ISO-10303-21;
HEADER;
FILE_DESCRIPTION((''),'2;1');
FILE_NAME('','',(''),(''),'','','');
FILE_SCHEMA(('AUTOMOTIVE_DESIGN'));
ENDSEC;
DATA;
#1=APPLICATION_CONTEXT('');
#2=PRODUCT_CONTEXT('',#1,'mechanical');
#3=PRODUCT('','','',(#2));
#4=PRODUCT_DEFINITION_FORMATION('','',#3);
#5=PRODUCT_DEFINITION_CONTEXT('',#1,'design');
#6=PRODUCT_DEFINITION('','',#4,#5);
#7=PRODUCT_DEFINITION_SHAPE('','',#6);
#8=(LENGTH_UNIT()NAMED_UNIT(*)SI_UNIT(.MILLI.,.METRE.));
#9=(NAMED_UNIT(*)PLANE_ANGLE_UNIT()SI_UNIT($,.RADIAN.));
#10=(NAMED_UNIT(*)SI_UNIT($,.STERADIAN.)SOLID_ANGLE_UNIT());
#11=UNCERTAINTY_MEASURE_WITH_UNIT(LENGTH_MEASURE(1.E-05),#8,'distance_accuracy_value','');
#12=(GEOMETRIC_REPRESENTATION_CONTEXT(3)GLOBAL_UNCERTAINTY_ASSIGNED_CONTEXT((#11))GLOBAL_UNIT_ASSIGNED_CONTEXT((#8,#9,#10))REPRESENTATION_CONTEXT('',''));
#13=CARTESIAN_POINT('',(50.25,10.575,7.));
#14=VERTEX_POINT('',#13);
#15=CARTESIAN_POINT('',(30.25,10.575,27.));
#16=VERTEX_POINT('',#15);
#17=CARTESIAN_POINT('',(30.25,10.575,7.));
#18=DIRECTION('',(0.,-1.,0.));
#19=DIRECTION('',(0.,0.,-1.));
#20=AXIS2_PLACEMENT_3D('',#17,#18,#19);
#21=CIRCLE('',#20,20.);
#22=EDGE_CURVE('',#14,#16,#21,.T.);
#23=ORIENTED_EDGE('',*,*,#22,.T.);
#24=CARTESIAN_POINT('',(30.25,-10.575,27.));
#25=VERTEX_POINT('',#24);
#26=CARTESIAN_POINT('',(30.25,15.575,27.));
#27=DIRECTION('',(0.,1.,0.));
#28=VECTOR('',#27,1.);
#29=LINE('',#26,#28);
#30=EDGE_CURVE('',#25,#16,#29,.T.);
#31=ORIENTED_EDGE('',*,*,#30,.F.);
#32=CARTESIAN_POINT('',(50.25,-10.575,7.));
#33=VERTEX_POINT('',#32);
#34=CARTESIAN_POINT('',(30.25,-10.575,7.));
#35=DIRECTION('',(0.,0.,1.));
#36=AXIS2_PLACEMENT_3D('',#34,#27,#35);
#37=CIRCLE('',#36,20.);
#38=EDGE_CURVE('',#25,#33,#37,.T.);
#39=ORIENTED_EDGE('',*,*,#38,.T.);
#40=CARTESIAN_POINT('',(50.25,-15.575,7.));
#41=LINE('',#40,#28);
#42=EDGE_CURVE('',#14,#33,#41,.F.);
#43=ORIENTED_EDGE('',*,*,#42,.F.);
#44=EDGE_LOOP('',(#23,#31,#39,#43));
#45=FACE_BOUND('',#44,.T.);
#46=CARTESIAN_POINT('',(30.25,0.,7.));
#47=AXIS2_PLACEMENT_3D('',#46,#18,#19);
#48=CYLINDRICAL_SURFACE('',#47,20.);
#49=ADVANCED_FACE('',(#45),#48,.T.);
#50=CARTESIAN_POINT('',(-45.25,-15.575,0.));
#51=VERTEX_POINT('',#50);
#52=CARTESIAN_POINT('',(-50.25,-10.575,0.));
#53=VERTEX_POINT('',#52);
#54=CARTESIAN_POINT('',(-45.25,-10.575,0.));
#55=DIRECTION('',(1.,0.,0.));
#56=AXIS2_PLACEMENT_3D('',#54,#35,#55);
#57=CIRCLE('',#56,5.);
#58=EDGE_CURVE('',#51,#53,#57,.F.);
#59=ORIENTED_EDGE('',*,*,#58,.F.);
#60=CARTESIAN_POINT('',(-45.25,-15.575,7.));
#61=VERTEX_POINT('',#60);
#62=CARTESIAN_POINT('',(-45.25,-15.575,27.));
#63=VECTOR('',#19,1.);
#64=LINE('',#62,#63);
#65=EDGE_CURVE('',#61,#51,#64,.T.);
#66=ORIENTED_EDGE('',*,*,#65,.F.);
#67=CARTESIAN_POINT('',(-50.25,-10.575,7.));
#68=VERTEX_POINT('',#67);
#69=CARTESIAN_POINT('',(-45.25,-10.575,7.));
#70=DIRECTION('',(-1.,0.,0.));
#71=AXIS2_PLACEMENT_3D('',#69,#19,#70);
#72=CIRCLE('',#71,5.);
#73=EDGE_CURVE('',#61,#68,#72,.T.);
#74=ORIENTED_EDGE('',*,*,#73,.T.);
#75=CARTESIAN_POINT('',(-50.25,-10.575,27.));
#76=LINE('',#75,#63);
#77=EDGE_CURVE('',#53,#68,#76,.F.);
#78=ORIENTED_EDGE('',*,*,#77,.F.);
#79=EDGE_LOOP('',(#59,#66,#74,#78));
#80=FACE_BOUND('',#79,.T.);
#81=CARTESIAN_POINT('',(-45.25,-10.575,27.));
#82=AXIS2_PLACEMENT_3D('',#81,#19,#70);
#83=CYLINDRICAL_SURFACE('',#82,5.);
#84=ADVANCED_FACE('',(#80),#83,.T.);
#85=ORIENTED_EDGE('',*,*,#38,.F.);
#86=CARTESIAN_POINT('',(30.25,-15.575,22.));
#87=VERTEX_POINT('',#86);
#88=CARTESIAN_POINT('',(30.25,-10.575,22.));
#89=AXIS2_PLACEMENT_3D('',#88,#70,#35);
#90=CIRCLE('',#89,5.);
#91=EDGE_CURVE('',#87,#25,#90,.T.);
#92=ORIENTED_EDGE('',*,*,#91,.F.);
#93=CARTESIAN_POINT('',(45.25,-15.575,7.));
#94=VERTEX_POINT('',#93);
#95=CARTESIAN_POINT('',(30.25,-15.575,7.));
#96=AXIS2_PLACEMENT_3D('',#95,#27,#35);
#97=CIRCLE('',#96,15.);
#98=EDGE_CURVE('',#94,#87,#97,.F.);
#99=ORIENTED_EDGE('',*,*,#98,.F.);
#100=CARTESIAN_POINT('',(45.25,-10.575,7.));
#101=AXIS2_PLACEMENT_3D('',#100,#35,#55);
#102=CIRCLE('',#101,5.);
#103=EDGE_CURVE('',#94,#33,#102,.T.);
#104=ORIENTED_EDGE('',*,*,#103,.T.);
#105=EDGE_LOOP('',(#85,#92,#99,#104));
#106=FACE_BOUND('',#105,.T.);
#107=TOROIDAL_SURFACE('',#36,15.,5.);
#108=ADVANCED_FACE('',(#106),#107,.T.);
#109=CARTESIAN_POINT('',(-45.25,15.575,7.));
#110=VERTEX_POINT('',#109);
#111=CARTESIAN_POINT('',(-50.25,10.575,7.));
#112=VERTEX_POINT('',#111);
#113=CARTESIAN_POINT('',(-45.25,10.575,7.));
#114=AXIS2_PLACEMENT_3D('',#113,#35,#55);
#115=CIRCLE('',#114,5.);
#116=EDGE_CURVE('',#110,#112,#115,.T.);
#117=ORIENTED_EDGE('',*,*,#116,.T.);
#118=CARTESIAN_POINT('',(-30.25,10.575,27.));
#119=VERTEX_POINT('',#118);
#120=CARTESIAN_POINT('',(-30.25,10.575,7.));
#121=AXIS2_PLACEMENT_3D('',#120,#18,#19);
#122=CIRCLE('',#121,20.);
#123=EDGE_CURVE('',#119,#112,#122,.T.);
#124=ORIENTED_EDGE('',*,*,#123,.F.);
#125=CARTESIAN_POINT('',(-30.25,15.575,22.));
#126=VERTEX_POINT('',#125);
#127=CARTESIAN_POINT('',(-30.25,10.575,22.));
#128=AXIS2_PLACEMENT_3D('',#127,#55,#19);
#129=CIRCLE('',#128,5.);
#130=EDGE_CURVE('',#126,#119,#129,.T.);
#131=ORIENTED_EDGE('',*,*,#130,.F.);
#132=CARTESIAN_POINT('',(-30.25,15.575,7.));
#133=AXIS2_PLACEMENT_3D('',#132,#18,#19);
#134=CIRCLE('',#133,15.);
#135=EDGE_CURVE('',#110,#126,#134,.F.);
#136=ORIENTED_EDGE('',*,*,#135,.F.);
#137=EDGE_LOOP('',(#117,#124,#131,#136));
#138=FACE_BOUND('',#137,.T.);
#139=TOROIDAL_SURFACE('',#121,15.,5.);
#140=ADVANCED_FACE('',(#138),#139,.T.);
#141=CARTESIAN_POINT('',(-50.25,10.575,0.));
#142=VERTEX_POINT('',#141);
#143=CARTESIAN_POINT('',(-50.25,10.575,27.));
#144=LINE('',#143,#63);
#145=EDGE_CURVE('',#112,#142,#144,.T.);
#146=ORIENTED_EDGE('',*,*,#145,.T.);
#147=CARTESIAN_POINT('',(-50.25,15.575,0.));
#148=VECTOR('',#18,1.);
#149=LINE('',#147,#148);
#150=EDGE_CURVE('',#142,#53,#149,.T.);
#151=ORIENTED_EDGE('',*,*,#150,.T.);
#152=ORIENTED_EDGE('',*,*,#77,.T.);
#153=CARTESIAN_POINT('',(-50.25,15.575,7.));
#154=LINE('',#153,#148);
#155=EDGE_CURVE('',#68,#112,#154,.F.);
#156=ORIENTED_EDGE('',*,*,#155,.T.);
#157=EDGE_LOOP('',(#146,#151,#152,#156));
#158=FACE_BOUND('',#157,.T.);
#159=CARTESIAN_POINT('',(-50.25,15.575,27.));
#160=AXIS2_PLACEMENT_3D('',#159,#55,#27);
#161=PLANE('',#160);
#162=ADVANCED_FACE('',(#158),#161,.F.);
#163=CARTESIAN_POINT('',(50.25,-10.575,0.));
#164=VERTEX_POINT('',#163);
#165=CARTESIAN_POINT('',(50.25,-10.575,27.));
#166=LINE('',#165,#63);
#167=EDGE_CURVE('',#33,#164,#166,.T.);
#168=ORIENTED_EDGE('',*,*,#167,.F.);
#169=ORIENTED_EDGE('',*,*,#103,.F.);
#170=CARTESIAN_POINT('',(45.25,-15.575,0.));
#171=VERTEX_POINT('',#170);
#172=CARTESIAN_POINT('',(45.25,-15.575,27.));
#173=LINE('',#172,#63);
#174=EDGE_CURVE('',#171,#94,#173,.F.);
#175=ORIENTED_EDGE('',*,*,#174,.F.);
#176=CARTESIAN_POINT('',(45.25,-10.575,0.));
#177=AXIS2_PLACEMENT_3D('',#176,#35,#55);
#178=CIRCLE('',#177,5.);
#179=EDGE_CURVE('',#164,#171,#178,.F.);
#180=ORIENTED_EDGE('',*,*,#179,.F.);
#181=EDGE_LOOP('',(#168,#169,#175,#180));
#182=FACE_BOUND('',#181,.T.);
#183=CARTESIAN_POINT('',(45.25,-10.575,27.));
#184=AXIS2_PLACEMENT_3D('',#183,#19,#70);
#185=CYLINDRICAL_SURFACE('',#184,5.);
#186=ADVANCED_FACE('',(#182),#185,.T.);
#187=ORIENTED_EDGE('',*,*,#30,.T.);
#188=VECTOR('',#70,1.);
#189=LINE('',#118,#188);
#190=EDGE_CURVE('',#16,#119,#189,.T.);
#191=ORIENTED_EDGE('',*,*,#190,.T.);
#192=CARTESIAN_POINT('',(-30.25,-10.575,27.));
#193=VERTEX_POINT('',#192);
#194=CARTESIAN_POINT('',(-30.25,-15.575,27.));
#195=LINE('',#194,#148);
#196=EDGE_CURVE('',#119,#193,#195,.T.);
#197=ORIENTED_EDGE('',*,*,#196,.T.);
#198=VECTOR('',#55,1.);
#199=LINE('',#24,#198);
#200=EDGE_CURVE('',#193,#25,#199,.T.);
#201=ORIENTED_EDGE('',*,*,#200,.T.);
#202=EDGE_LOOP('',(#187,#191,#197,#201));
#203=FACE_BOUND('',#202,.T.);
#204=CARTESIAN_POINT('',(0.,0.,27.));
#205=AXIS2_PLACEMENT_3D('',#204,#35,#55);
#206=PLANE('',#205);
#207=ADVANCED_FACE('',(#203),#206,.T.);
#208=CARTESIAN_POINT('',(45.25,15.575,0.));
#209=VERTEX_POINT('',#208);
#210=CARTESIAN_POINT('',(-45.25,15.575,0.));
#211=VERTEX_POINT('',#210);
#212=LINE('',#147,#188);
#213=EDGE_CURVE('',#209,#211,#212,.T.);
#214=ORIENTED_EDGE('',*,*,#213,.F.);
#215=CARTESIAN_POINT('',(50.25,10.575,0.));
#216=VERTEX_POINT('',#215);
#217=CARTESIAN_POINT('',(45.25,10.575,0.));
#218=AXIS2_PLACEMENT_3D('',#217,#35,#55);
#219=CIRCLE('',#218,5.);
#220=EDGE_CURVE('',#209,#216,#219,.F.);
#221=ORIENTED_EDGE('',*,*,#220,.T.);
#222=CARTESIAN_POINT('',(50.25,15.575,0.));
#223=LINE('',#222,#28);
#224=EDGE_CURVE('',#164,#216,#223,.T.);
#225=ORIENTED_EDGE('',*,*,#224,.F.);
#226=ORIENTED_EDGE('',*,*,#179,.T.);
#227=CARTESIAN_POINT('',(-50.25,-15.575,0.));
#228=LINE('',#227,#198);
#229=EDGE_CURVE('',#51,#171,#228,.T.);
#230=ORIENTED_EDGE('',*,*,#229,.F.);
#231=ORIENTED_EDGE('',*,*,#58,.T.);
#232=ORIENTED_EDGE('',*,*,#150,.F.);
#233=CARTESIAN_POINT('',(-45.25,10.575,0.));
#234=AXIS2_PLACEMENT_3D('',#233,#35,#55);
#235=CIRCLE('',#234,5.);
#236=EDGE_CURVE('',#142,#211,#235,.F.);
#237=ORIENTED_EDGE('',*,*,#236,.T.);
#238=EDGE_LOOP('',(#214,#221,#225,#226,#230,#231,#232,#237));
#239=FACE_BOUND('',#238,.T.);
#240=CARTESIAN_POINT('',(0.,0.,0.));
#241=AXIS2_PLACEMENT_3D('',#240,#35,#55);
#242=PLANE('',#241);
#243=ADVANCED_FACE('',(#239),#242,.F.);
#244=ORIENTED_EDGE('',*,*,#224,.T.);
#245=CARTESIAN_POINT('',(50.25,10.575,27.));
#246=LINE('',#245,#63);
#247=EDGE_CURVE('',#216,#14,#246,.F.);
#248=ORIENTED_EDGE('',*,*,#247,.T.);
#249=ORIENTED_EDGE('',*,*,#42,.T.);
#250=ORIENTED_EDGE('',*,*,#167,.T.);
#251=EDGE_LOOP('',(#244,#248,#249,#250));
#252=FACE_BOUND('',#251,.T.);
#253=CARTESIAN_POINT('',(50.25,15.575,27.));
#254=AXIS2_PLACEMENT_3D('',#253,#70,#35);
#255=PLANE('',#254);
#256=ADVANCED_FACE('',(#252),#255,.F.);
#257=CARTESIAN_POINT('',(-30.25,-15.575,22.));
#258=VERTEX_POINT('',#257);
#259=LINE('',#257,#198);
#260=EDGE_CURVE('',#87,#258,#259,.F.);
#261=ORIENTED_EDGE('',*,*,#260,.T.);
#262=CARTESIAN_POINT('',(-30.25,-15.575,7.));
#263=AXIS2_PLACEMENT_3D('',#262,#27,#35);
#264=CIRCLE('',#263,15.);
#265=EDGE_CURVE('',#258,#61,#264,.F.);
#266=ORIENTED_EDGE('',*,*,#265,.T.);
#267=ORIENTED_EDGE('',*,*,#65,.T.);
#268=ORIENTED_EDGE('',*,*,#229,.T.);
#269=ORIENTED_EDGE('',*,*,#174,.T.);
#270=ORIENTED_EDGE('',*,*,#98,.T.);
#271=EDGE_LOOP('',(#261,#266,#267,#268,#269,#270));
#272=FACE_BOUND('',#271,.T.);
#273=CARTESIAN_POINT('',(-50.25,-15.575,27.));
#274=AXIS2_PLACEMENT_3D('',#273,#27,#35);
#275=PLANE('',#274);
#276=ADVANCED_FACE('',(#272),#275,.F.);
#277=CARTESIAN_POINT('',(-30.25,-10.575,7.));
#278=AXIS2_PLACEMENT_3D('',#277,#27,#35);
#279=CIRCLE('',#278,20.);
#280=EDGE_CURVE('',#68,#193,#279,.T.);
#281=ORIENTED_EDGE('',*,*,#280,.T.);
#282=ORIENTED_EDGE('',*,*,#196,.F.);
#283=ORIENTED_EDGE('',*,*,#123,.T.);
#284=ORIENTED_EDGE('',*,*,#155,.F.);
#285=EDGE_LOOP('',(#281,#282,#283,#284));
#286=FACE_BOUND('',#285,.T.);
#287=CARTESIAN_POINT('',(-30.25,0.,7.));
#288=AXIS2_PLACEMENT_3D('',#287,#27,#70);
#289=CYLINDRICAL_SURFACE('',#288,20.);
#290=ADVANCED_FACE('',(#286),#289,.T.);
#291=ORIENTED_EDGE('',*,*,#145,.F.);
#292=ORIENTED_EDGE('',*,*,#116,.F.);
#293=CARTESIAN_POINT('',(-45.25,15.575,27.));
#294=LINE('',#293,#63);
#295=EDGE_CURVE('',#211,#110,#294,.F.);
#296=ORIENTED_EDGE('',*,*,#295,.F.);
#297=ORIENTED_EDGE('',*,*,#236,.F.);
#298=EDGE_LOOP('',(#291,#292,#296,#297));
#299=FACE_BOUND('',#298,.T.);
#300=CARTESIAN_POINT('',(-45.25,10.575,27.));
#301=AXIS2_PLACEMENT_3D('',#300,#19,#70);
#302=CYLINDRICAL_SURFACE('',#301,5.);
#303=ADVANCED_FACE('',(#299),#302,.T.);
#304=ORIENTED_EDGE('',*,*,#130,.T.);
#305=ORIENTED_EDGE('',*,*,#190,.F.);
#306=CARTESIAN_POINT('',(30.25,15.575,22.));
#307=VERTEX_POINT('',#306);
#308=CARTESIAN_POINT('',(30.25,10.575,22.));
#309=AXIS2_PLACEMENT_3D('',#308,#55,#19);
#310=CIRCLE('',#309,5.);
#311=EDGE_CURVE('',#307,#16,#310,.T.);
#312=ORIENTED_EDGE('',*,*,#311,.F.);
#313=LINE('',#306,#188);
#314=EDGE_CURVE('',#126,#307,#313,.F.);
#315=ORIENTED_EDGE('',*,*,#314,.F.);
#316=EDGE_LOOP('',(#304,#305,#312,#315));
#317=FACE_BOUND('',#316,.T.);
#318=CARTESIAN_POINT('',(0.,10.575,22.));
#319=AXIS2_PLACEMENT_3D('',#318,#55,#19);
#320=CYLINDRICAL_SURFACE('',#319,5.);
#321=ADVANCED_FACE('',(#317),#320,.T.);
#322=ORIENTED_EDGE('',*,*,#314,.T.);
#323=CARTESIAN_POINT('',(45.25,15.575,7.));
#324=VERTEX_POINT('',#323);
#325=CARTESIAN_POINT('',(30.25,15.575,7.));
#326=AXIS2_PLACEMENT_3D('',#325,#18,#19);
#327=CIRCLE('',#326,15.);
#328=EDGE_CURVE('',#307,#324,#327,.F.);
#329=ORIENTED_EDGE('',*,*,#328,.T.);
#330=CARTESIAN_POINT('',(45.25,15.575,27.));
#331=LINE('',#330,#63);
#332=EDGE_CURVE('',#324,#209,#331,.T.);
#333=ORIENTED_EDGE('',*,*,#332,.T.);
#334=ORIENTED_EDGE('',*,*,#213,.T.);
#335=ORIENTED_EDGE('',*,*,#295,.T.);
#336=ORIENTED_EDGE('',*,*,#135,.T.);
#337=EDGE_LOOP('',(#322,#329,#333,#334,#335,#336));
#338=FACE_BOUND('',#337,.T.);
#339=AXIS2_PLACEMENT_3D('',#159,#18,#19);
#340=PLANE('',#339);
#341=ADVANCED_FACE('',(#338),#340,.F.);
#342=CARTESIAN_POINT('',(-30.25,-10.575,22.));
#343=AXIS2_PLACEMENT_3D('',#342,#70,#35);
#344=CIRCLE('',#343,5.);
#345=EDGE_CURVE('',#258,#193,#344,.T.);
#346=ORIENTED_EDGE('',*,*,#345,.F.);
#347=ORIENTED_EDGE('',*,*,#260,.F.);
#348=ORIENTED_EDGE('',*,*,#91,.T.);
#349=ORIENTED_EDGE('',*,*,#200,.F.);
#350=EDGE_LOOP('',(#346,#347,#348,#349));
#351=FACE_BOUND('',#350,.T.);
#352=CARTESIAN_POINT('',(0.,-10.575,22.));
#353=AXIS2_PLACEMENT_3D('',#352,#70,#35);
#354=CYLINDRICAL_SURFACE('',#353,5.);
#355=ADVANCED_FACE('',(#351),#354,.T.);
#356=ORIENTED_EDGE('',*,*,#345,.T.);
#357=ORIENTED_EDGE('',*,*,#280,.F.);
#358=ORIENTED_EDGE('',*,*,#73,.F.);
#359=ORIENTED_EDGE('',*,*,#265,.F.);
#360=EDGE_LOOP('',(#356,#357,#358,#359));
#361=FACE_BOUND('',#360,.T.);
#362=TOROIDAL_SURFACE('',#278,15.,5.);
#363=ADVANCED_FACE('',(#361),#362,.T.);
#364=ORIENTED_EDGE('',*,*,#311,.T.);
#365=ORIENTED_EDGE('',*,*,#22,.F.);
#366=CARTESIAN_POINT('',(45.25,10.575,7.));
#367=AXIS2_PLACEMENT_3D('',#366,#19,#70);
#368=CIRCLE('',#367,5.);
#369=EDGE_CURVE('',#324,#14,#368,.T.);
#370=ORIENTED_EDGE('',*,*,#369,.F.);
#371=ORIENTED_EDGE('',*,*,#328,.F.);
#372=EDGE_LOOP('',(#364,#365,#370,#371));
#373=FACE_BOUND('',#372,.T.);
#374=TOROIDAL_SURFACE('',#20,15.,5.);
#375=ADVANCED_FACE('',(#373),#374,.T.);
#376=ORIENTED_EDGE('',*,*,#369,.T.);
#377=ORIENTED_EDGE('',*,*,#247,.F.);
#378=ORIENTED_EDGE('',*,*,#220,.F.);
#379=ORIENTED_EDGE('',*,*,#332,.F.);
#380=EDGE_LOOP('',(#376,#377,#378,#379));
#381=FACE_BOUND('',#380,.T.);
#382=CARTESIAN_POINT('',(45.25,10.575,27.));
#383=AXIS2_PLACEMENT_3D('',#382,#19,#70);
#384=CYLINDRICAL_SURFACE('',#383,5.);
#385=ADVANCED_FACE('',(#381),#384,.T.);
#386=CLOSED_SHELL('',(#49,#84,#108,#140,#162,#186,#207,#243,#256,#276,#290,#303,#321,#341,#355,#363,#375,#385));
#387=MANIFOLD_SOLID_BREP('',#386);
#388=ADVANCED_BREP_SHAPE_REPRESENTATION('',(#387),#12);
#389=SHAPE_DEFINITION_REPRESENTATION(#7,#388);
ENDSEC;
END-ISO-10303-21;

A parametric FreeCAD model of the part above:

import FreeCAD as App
import Part
import Sketcher
from FreeCAD import Vector


def edges_at(feature, points):
    """Names of the edges that pass closest to the given points."""
    edges = feature.Shape.Edges
    near = lambda p: min(range(len(edges)), key=lambda i: edges[i].distToShape(Part.Vertex(*p))[0])
    return sorted({f"Edge{near(p) + 1}" for p in points})


def add_polygon(sketch, points):
    """Adds a closed chain of lines whose ends are joined by coincident constraints."""
    first, n = sketch.GeometryCount, len(points)
    for a, b in zip(points, points[1:] + points[:1]):
        sketch.addGeometry(Part.LineSegment(App.Vector(*a, 0), App.Vector(*b, 0)), False)
    for i in range(n):
        sketch.addConstraint(Sketcher.Constraint("Coincident", first + i, 2, first + (i + 1) % n, 1))

doc = App.newDocument("Part")
params = doc.addObject("Spreadsheet::Sheet", "Params")
for row, (alias, value) in enumerate([
    ("sketch1_width", "100.5 mm"),
    ("sketch1_height", "31.15 mm"),
    ("pad1_length", "27 mm"),
    ("fillet_radius", "20 mm"),
    ("fillet2_radius", "5 mm"),
], start=1):
    params.set(f"A{row}", alias)
    params.set(f"B{row}", "=" + value)
    params.setAlias(f"B{row}", alias)

body = doc.addObject("PartDesign::Body", "Body")

sketch1 = body.newObject("Sketcher::SketchObject", "Sketch")
sketch1.AttachmentSupport = (doc.getObject("XY_Plane"), [""])
sketch1.MapMode = "FlatFace"
add_polygon(sketch1, [(-50.25, 15.575), (-50.25, -15.575), (50.25, -15.575), (50.25, 15.575)])
sketch1.addConstraint(Sketcher.Constraint("Vertical", 0))
sketch1.addConstraint(Sketcher.Constraint("Horizontal", 1))
sketch1.addConstraint(Sketcher.Constraint("Vertical", 2))
sketch1.addConstraint(Sketcher.Constraint("Horizontal", 3))
sketch1.addConstraint(Sketcher.Constraint("Symmetric", 0, 2, 2, 2, -1, 1))
sketch1.addConstraint(Sketcher.Constraint("DistanceX", 1, 1, 1, 2, 100.5))
sketch1.addConstraint(Sketcher.Constraint("DistanceY", 0, 2, 0, 1, 31.15))
sketch1.setExpression("Constraints[9]", "Params.sketch1_width")
sketch1.setExpression("Constraints[10]", "Params.sketch1_height")
pad1 = body.newObject("PartDesign::Pad", "Pad")
pad1.Profile = sketch1
pad1.setExpression("Length", "Params.pad1_length")
doc.recompute()

fillet = body.newObject("PartDesign::Fillet", "Fillet")
fillet.Base = (pad1, edges_at(pad1, [(-50.25, 0, 27), (50.25, 0, 27)]))
fillet.setExpression("Radius", "Params.fillet_radius")
doc.recompute()

fillet2 = body.newObject("PartDesign::Fillet", "Fillet001")
fillet2.Base = (fillet, edges_at(fillet, [
    (0, 15.575, 27),
    (0, -15.575, 27),
    (-50.25, 15.575, 3.5),
    (50.25, 15.575, 3.5),
    (-44.392, 15.575, 21.142),
    (44.392, 15.575, 21.142),
    (50.25, -15.575, 3.5),
    (-50.25, -15.575, 3.5),
    (-44.392, -15.575, 21.142),
    (44.392, -15.575, 21.142),
]))
fillet2.setExpression("Radius", "Params.fillet2_radius")

doc.recompute()
